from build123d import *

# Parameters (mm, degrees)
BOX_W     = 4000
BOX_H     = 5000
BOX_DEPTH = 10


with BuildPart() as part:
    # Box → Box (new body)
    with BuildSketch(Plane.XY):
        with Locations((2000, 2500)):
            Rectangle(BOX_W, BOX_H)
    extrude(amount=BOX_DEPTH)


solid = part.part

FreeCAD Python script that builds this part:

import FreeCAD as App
import Part
import Sketcher
Q = App.Units.Quantity

doc = App.newDocument("Part")
body = doc.addObject("PartDesign::Body", "Body")

# Sketch on XY plane
sketch1 = doc.addObject("Sketcher::SketchObject", "Sketch")
body.addObject(sketch1)
sketch1.AttachmentSupport = (doc.XY_Plane, [""])
sketch1.MapMode = "FlatFace"
sketch1.addGeometry([
    Part.LineSegment(App.Vector(0, 5000, 0), App.Vector(0, 0, 0)),
    Part.LineSegment(App.Vector(0, 0, 0), App.Vector(4000, 0, 0)),
    Part.LineSegment(App.Vector(4000, 0, 0), App.Vector(4000, 5000, 0)),
    Part.LineSegment(App.Vector(4000, 5000, 0), App.Vector(0, 5000, 0)),
], False)
sketch1.addConstraint([
    Sketcher.Constraint("Coincident", 0, 2, 1, 1),
    Sketcher.Constraint("Coincident", 1, 2, 2, 1),
    Sketcher.Constraint("Coincident", 2, 2, 3, 1),
    Sketcher.Constraint("Coincident", 3, 2, 0, 1),
    Sketcher.Constraint("Vertical", 0),
    Sketcher.Constraint("Horizontal", 1),
    Sketcher.Constraint("Vertical", 2),
    Sketcher.Constraint("Horizontal", 3),
    Sketcher.Constraint("Coincident", 0, 2, -1, 1),
    Sketcher.Constraint("DistanceX", 1, 1, 1, 2, Q("4000 mm")),
    Sketcher.Constraint("DistanceY", 0, 2, 0, 1, Q("5000 mm")),
])
pad1 = doc.addObject("PartDesign::Pad", "Pad")
body.addObject(pad1)
pad1.Profile = sketch1
pad1.Length = 10

doc.recompute()
